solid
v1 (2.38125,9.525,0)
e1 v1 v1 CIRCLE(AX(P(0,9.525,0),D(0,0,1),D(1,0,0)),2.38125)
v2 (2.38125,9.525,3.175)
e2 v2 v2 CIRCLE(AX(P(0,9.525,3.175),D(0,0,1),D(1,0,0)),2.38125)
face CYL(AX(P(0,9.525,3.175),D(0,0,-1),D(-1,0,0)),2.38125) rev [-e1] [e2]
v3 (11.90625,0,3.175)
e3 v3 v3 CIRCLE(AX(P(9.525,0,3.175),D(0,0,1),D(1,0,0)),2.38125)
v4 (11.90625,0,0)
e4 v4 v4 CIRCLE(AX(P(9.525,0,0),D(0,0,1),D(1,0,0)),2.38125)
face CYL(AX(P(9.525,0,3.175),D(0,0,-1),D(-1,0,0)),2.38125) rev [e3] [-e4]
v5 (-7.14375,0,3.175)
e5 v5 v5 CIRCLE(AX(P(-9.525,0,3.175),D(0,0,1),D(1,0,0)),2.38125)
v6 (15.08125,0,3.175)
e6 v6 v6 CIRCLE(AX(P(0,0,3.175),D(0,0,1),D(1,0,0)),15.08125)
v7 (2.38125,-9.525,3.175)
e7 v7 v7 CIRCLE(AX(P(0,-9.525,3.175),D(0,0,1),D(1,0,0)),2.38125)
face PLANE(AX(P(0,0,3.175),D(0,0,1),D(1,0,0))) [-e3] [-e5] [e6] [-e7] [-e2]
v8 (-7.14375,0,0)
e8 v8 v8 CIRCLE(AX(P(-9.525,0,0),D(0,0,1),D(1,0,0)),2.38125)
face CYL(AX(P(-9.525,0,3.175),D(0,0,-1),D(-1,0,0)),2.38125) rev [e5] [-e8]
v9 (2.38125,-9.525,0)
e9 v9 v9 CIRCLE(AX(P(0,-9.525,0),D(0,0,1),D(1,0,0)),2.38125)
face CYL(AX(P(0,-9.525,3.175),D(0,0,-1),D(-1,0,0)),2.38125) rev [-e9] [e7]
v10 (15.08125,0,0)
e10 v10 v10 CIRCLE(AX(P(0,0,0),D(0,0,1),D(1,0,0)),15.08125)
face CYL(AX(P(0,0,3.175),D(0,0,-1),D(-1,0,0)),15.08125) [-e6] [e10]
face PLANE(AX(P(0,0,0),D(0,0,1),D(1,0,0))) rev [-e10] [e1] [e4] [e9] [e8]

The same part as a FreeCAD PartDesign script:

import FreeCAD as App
import Part
import Sketcher

V = App.Vector
Q = App.Units.Quantity

doc = App.newDocument("Part")
params = doc.addObject("Spreadsheet::Sheet", "Params")
for row, (alias, value) in enumerate([
    ("sketch1_diameter", "1.1875 in"),
    ("sketch1_diameter2", "0.1875 in"),
    ("pad1_length", "0.125 in"),
], start=1):
    params.set(f"A{row}", alias)
    params.set(f"B{row}", "=" + value)
    params.setAlias(f"B{row}", alias)

body = doc.addObject("PartDesign::Body", "Body")

sketch1 = body.newObject("Sketcher::SketchObject", "Sketch")
sketch1.AttachmentSupport = (doc.getObject("XY_Plane"), [""])
sketch1.MapMode = "FlatFace"
sketch1.addGeometry(Part.Circle(V(0, 0, 0), V(0, 0, 1), 15.1), False)
sketch1.addGeometry(Part.Circle(V(0, -9.5, 0), V(0, 0, 1), 2.4), False)
sketch1.addGeometry(Part.Circle(V(-9.5, 0, 0), V(0, 0, 1), 2.4), False)
sketch1.addGeometry(Part.Circle(V(9.5, 0, 0), V(0, 0, 1), 2.4), False)
sketch1.addGeometry(Part.Circle(V(0, 9.5, 0), V(0, 0, 1), 2.4), False)
sketch1.addConstraint(Sketcher.Constraint("Coincident", 0, 3, -1, 1))
sketch1.addConstraint(Sketcher.Constraint("Equal", 1, 2))
sketch1.addConstraint(Sketcher.Constraint("Equal", 2, 3))
sketch1.addConstraint(Sketcher.Constraint("Equal", 3, 4))
sketch1.addConstraint(Sketcher.Constraint("Symmetric", 2, 3, 3, 3, -1, 1))
sketch1.addConstraint(Sketcher.Constraint("Symmetric", 1, 3, 4, 3, -1, 1))
sketch1.addConstraint(Sketcher.Constraint("PointOnObject", 1, 3, -2))
sketch1.addConstraint(Sketcher.Constraint("PointOnObject", 2, 3, -1))
sketch1.addConstraint(Sketcher.Constraint("Diameter", 0, Q("1.1875 in")))
sketch1.addConstraint(Sketcher.Constraint("Diameter", 1, Q("0.1875 in")))
sketch1.addConstraint(Sketcher.Constraint("DistanceX", 2, 3, 3, 3, Q("0.75 in")))
sketch1.addConstraint(Sketcher.Constraint("DistanceY", 1, 3, 4, 3, Q("0.75 in")))
sketch1.setExpression("Constraints[8]", "Params.sketch1_diameter")
sketch1.setExpression("Constraints[9]", "Params.sketch1_diameter2")
pad1 = body.newObject("PartDesign::Pad", "Pad")
pad1.Profile = sketch1
pad1.setExpression("Length", "Params.pad1_length")

doc.recompute()
